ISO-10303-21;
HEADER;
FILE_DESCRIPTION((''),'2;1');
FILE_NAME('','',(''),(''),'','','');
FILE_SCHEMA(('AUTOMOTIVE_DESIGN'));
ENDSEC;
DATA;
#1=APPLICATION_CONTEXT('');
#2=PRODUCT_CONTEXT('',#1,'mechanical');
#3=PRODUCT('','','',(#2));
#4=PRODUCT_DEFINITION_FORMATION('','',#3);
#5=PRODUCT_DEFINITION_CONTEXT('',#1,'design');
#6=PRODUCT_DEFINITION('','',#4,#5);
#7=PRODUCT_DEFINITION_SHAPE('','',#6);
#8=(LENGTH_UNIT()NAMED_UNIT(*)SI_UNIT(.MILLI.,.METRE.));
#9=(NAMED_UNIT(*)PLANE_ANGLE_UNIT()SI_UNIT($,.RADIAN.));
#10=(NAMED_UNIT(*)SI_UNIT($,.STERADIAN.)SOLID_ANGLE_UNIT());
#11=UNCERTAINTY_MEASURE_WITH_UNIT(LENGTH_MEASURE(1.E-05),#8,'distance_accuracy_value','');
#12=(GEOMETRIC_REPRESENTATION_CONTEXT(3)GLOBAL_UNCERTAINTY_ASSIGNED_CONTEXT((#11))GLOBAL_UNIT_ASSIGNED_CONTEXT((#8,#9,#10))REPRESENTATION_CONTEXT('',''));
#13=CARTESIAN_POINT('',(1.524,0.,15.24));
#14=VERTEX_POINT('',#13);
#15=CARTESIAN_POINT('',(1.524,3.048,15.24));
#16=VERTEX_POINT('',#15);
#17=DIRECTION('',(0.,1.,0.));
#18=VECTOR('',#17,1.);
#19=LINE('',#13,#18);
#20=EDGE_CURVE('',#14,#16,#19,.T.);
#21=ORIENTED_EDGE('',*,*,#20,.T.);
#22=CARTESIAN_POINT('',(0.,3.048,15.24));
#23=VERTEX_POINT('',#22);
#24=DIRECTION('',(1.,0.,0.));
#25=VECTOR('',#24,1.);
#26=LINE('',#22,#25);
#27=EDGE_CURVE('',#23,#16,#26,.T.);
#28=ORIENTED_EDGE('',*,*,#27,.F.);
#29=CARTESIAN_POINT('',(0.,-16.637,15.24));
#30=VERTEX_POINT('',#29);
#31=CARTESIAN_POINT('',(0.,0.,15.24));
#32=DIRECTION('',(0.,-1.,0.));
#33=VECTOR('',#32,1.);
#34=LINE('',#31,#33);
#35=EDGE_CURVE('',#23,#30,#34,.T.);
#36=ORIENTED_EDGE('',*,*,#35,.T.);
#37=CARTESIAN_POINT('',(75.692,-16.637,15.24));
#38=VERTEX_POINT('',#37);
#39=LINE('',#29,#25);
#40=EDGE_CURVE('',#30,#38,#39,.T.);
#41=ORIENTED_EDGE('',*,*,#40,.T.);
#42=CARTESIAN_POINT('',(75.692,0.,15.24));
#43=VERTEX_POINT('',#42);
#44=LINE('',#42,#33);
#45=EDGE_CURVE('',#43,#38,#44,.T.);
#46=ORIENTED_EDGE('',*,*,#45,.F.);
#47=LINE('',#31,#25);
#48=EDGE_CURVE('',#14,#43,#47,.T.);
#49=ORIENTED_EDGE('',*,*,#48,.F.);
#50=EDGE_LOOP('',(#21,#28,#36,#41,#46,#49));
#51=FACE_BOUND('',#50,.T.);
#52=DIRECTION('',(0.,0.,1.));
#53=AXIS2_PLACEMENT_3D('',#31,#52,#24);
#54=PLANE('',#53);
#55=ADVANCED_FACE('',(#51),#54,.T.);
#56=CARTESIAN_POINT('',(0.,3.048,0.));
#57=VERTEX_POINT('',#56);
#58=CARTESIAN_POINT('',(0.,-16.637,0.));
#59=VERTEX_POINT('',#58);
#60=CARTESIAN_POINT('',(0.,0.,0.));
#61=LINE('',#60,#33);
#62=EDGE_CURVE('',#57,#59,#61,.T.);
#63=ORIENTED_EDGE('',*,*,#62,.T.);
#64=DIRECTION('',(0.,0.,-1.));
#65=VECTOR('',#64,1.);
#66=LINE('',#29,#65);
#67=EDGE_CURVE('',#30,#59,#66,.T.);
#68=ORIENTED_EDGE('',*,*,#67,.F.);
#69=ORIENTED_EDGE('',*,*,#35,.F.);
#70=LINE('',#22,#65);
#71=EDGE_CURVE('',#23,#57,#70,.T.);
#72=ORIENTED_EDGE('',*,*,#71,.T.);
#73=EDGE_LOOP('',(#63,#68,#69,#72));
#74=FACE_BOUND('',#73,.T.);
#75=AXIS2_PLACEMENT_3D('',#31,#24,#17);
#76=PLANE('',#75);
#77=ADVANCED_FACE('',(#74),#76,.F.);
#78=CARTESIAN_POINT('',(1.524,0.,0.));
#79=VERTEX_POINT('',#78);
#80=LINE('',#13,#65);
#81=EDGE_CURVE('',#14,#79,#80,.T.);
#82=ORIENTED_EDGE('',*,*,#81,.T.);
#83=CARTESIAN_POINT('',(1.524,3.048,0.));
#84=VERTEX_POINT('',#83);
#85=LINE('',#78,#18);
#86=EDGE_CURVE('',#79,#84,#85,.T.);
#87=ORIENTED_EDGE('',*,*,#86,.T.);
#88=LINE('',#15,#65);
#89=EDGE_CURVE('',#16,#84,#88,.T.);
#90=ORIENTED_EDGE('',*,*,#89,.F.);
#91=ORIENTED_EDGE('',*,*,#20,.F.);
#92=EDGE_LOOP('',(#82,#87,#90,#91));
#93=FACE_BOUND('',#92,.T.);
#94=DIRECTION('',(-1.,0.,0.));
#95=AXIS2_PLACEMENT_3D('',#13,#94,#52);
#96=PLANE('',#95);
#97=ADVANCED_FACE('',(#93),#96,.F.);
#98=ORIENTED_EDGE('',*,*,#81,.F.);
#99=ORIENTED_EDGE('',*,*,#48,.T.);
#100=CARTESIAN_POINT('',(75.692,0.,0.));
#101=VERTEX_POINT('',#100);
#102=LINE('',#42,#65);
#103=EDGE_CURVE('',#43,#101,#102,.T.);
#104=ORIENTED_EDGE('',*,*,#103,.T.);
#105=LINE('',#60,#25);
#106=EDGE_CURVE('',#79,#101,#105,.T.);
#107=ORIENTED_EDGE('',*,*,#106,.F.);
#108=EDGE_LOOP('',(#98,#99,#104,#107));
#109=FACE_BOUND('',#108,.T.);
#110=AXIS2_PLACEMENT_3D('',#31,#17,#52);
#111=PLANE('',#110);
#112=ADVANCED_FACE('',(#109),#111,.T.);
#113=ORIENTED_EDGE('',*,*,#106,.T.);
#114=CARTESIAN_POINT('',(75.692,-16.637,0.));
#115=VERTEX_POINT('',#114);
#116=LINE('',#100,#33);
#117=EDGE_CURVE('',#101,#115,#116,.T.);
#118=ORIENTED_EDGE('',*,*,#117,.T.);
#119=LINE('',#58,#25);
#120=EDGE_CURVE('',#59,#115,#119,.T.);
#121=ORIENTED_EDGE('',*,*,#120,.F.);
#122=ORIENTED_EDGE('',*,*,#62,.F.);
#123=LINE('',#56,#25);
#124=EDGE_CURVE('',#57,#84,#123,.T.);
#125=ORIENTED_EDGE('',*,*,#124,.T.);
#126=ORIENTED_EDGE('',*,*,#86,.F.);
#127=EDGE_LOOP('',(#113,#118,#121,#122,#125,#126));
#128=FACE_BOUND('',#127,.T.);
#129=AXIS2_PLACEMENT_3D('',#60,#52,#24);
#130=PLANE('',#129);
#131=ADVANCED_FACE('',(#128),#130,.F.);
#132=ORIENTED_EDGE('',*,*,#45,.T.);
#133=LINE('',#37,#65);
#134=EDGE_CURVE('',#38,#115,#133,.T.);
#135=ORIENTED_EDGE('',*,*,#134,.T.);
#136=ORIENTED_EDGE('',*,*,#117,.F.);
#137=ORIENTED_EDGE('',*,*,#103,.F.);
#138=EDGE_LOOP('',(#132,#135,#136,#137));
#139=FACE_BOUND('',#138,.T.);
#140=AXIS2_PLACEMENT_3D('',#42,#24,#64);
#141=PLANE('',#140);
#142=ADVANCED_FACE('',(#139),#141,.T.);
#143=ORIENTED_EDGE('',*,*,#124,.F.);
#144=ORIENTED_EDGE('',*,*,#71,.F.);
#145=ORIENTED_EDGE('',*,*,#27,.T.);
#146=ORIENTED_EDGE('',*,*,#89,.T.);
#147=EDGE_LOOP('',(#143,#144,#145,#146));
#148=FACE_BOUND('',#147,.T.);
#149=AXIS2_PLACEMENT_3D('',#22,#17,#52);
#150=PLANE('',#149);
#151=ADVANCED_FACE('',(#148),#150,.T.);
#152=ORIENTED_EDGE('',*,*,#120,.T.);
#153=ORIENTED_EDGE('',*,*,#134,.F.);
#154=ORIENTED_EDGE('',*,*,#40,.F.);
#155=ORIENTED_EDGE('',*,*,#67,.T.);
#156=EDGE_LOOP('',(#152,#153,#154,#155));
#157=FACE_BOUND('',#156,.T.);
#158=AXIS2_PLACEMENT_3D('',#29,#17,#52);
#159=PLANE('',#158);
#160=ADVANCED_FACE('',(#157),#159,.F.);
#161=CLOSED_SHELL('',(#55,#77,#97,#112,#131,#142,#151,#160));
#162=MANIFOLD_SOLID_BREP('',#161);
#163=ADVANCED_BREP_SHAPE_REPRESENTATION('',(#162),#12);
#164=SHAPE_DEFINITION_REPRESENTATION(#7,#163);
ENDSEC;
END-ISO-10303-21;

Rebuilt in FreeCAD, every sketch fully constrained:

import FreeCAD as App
import Part
import Sketcher

V = App.Vector
Q = App.Units.Quantity


def add_polygon(sketch, points):
    """Adds a closed chain of lines whose ends are joined by coincident constraints."""
    first, n = sketch.GeometryCount, len(points)
    for a, b in zip(points, points[1:] + points[:1]):
        sketch.addGeometry(Part.LineSegment(App.Vector(*a, 0), App.Vector(*b, 0)), False)
    for i in range(n):
        sketch.addConstraint(Sketcher.Constraint("Coincident", first + i, 2, first + (i + 1) % n, 1))

doc = App.newDocument("Part")
body = doc.addObject("PartDesign::Body", "Body")

# Sketch on XY plane
sketch1 = body.newObject("Sketcher::SketchObject", "Sketch")
sketch1.AttachmentSupport = (doc.getObject("XY_Plane"), [""])
sketch1.MapMode = "FlatFace"
add_polygon(sketch1, [(0, -16.637), (75.692, -16.637), (75.692, 0), (1.524, 0), (1.524, 3.048), (0, 3.048)])  # lines 0-5
sketch1.addConstraint([
    Sketcher.Constraint("Horizontal", 0),
    Sketcher.Constraint("Vertical", 1),
    Sketcher.Constraint("Horizontal", 2),
    Sketcher.Constraint("Vertical", 3),
    Sketcher.Constraint("Horizontal", 4),
    Sketcher.Constraint("Vertical", 5),
    Sketcher.Constraint("PointOnObject", 1, 2, -1),
    Sketcher.Constraint("PointOnObject", 4, 2, -2),
    Sketcher.Constraint("DistanceX", 0, 1, 0, 2, Q("2.98 in")),
    Sketcher.Constraint("DistanceX", 2, 2, 2, 1, Q("2.92 in")),
    Sketcher.Constraint("DistanceY", 3, 1, 3, 2, Q("0.12 in")),
    Sketcher.Constraint("DistanceY", 1, 1, 1, 2, Q("0.655 in")),
])
pad1 = body.newObject("PartDesign::Pad", "Pad")
pad1.Profile = sketch1
pad1.Length = Q("0.6 in")

doc.recompute()
